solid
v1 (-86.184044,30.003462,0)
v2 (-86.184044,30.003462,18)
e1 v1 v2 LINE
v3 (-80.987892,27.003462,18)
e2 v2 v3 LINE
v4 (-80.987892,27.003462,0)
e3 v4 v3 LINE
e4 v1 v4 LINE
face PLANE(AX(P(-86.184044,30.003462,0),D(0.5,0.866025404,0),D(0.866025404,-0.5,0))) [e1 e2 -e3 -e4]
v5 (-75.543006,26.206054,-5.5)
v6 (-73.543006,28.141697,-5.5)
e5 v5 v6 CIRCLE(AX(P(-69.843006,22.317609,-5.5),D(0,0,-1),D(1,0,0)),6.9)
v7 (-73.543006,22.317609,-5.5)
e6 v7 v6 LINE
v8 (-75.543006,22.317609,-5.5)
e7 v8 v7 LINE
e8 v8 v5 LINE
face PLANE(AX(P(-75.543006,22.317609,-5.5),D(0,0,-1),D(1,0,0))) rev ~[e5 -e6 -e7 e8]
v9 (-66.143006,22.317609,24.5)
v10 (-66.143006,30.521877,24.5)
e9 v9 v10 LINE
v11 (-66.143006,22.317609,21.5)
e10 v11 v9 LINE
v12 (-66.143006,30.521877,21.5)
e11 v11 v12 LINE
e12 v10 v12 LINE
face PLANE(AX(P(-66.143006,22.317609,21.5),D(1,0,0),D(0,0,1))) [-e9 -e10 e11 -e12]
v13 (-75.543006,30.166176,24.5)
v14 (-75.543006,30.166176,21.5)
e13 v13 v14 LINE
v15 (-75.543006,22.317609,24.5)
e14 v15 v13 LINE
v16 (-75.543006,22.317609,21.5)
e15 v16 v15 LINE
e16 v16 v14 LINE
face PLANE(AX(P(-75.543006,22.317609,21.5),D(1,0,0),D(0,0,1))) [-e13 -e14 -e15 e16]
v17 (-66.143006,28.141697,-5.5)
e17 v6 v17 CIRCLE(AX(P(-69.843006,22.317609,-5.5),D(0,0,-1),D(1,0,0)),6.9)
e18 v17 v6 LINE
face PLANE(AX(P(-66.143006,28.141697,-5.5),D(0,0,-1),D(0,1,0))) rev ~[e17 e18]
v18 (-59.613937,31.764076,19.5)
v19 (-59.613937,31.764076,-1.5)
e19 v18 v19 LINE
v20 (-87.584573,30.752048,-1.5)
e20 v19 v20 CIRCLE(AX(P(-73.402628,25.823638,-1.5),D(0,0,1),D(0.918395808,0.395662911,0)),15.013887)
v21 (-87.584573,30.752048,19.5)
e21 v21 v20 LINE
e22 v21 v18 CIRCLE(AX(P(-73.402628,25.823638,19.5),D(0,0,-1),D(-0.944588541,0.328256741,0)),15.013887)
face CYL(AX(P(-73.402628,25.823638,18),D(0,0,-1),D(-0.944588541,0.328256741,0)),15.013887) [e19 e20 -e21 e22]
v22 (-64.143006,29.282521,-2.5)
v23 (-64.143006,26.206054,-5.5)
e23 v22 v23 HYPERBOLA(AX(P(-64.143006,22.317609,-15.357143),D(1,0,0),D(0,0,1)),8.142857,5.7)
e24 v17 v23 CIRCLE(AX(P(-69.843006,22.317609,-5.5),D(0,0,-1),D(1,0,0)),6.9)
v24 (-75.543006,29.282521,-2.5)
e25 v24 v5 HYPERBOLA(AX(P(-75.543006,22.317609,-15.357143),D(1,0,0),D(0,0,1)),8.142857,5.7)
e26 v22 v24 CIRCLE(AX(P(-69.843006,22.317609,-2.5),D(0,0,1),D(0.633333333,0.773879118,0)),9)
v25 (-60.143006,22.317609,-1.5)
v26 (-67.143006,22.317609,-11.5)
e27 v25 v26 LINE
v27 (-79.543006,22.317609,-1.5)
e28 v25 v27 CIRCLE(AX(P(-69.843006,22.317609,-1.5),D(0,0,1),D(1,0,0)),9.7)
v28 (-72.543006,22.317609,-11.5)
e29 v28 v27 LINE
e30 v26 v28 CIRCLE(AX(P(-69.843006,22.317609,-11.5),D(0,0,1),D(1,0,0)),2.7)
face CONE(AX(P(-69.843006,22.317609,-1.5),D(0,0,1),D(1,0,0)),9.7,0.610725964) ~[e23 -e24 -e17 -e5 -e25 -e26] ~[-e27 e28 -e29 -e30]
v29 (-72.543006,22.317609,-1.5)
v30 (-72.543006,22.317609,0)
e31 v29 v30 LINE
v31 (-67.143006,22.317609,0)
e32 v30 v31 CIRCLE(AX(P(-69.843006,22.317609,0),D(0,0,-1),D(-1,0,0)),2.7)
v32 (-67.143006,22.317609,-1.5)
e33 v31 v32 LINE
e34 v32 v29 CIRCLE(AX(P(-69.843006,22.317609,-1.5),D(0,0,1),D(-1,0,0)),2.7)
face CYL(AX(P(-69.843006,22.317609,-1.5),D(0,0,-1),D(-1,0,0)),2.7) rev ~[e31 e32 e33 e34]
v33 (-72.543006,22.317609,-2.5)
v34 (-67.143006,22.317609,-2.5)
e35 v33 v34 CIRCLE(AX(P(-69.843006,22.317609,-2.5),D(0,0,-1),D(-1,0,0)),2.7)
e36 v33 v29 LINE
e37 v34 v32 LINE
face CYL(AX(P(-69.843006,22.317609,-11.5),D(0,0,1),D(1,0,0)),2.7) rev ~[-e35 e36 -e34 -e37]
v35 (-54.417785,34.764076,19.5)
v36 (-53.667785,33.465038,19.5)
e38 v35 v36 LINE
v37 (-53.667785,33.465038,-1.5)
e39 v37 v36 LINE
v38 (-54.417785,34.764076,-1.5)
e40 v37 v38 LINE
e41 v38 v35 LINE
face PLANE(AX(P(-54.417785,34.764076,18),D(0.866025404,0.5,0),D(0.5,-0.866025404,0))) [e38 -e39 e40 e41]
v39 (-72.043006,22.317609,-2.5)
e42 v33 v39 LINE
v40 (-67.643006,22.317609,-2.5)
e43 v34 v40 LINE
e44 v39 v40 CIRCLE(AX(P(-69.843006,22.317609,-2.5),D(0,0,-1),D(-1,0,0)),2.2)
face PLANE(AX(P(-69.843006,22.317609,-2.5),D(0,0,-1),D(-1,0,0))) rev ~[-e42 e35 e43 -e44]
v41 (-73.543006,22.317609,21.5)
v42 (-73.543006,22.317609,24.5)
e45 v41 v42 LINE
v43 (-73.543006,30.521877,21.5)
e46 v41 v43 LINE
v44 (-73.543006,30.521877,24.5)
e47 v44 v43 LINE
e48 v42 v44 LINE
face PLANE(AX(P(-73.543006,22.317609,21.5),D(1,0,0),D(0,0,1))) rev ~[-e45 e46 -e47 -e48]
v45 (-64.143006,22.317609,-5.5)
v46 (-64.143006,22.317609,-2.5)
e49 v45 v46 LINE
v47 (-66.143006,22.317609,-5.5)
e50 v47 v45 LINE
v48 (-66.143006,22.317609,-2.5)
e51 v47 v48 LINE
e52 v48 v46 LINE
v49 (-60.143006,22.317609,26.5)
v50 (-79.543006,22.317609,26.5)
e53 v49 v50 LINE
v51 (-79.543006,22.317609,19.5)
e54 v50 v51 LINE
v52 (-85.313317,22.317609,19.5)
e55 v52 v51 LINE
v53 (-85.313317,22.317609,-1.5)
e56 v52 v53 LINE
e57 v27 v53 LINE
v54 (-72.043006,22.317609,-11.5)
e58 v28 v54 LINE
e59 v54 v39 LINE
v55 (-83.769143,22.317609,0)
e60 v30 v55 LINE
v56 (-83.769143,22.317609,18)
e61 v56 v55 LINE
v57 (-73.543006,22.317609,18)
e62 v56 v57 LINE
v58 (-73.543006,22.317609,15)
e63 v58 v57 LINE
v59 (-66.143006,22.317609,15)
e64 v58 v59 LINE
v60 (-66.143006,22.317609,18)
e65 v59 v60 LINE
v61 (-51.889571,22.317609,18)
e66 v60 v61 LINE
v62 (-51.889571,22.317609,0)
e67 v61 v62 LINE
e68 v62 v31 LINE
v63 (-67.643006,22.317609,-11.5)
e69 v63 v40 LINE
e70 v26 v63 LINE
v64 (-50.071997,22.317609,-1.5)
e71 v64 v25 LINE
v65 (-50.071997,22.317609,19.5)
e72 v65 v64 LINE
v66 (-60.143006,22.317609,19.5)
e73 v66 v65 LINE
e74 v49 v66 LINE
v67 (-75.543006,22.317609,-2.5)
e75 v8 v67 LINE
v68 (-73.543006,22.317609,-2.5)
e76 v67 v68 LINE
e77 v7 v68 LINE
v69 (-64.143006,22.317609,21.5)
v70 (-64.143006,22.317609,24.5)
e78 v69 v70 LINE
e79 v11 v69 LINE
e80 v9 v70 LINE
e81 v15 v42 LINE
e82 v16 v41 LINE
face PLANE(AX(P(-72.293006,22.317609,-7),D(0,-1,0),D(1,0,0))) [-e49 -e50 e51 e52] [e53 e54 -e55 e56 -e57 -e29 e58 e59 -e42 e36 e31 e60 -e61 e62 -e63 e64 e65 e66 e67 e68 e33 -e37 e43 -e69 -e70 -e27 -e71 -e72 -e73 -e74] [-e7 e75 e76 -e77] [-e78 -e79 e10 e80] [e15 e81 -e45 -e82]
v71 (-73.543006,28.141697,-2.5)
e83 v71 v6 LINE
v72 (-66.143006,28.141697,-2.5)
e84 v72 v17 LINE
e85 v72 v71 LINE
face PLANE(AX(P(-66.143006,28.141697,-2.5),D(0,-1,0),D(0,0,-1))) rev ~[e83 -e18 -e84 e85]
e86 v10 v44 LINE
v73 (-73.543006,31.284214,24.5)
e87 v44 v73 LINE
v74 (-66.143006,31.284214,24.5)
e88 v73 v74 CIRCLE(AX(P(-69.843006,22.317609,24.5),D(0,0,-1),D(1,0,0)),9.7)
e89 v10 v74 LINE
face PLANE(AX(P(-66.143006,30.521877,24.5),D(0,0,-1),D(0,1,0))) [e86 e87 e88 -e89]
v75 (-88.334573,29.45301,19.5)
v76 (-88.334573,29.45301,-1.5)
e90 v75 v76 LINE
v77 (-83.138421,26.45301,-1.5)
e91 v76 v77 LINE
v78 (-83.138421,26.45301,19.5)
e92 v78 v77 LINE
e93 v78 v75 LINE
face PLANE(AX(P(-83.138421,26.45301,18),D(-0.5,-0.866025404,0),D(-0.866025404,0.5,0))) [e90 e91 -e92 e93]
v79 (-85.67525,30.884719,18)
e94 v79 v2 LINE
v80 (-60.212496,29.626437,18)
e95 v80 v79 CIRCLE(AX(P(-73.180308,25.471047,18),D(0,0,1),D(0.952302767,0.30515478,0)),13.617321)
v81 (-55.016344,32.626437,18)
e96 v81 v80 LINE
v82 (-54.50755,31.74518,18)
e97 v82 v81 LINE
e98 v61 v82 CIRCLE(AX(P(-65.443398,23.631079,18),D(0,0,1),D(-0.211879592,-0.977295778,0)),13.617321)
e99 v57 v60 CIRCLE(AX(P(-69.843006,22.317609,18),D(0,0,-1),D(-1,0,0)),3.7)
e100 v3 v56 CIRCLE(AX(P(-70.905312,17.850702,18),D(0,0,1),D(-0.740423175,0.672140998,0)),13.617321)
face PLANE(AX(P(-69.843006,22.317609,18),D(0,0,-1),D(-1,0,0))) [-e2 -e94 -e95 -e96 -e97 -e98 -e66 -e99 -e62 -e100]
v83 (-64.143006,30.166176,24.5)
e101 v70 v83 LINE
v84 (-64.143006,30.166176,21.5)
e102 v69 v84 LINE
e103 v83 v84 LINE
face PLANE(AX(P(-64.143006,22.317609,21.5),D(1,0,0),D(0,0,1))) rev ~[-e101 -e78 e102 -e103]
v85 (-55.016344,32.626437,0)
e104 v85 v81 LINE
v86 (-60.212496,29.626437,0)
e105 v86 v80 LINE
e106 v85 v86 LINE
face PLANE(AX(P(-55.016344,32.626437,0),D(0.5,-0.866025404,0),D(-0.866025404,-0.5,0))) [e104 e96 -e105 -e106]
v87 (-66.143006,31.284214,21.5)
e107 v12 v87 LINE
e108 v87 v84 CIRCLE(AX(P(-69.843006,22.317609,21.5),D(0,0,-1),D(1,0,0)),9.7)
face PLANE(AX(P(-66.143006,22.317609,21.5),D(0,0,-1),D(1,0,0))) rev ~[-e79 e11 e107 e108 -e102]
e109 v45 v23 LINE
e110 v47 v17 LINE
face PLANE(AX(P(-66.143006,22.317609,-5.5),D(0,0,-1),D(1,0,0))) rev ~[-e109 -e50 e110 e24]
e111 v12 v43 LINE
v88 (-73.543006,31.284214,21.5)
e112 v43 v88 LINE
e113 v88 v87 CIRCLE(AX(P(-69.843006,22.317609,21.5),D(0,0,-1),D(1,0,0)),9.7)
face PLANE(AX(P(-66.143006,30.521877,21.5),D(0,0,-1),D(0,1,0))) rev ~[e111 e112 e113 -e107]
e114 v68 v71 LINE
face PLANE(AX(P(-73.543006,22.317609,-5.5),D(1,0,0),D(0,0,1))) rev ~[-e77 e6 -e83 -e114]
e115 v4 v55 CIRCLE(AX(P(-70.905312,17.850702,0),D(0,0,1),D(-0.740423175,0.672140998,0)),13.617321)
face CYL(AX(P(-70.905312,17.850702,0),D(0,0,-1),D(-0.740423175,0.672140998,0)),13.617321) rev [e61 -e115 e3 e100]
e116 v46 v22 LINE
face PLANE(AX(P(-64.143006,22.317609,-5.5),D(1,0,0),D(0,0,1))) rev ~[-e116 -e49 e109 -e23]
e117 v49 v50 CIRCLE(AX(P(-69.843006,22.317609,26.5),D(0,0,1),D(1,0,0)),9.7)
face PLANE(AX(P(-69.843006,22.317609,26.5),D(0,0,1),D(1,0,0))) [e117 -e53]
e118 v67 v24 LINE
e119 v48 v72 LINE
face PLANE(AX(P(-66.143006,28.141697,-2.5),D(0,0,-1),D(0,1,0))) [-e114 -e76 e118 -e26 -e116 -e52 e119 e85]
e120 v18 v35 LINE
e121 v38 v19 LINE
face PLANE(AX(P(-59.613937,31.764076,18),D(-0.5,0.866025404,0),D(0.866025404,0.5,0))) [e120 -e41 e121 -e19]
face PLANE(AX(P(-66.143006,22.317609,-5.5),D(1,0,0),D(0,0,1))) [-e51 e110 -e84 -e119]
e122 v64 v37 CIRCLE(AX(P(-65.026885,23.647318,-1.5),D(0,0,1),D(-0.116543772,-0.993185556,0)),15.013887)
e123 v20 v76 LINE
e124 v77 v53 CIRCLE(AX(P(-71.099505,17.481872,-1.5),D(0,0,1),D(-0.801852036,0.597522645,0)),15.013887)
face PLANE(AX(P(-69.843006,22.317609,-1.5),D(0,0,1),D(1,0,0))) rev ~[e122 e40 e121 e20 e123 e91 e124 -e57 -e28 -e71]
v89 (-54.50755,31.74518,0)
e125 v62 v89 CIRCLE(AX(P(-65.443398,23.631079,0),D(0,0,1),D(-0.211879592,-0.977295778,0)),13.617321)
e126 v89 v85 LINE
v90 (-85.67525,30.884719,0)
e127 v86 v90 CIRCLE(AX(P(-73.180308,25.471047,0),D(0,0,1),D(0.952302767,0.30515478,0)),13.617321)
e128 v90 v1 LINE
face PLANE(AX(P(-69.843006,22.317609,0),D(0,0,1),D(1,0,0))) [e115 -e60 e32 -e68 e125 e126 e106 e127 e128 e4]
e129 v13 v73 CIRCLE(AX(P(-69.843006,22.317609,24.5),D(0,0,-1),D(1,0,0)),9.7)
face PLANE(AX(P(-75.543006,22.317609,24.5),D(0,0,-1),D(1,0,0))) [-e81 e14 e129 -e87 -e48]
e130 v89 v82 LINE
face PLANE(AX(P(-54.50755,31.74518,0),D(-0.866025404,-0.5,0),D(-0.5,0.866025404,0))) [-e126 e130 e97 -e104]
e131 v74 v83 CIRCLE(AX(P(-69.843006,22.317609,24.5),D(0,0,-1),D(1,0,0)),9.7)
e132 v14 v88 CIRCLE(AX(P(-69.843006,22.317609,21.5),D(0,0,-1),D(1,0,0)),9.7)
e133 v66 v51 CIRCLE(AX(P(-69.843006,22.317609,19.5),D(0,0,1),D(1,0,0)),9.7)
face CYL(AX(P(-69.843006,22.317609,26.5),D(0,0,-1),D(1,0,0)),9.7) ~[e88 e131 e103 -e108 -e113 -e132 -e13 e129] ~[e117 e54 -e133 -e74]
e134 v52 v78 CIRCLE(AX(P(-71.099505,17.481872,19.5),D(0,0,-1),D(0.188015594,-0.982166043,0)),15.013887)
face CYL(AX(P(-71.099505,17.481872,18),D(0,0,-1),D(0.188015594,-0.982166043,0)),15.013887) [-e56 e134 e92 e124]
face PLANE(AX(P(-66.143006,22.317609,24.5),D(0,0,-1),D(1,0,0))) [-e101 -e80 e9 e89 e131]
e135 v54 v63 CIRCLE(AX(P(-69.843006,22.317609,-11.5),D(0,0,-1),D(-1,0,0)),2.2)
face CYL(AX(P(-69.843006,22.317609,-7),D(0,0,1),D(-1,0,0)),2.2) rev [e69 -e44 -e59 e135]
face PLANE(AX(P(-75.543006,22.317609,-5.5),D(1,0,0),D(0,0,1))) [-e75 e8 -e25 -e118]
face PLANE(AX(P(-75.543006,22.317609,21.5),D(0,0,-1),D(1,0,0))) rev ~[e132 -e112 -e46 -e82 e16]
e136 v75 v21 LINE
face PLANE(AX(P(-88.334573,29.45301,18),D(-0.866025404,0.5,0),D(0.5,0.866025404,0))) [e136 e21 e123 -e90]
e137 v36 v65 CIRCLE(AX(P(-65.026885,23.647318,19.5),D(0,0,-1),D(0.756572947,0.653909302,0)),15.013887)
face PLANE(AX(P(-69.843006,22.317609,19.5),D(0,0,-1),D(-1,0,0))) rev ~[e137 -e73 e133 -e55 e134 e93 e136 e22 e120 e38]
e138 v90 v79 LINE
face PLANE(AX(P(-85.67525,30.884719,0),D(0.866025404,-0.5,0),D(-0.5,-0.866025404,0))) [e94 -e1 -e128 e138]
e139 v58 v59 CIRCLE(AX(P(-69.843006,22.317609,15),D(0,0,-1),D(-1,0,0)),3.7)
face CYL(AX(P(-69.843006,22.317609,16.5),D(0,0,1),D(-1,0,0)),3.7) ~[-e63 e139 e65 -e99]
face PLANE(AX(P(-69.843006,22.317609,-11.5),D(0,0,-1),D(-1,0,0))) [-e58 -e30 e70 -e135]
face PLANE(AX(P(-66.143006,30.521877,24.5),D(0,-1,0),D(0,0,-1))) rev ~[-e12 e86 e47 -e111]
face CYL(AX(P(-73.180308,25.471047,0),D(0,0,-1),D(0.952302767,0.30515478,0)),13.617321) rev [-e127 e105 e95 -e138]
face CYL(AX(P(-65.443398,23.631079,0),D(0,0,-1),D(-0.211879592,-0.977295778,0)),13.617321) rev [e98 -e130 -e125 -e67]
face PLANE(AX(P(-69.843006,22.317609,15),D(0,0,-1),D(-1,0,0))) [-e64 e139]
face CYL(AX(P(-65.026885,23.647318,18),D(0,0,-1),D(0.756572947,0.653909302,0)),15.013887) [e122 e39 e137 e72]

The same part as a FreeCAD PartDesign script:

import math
import FreeCAD as App
import Part
import Sketcher
Q = App.Units.Quantity

doc = App.newDocument("Part")
body = doc.addObject("PartDesign::Body", "Body")

# Sketch on XY plane
sketch1 = body.newObject("Sketcher::SketchObject", "Sketch")
sketch1.AttachmentSupport = (doc.getObject("XY_Plane"), [""])
sketch1.MapMode = "FlatFace"
sketch1.addGeometry(Part.LineSegment(App.Vector(-53.7, 33.5, 0), App.Vector(-54.4, 34.8, 0)), False)
sketch1.addGeometry(Part.LineSegment(App.Vector(-54.4, 34.8, 0), App.Vector(-59.6, 31.8, 0)), False)
sketch1.addGeometry(Part.ArcOfCircle(Part.Circle(App.Vector(-73.4, 25.8, 0), App.Vector(0, 0, 1), 15), math.radians(23), math.radians(161)), False)
sketch1.addGeometry(Part.LineSegment(App.Vector(-87.6, 30.8, 0), App.Vector(-88.3, 29.5, 0)), False)
sketch1.addGeometry(Part.LineSegment(App.Vector(-88.3, 29.5, 0), App.Vector(-83.1, 26.5, 0)), False)
sketch1.addGeometry(Part.ArcOfCircle(Part.Circle(App.Vector(-71.1, 17.5, 0), App.Vector(0, 0, 1), 15), math.radians(143), math.radians(281)), False)
sketch1.addGeometry(Part.LineSegment(App.Vector(-68.3, 2.7, 0), App.Vector(-66.8, 2.7, 0)), False)
sketch1.addGeometry(Part.LineSegment(App.Vector(-66.8, 2.7, 0), App.Vector(-66.8, 8.7, 0)), False)
sketch1.addGeometry(Part.ArcOfCircle(Part.Circle(App.Vector(-65, 23.6, 0), App.Vector(0, 0, 1), 15), math.radians(-97), math.radians(41)), False)
sketch1.addGeometry(Part.LineSegment(App.Vector(-55, 32.6, 0), App.Vector(-54.5, 31.7, 0)), False)
sketch1.addGeometry(Part.ArcOfCircle(Part.Circle(App.Vector(-65.4, 23.6, 0), App.Vector(0, 0, 1), 13.6), math.radians(-102), math.radians(37)), False)
sketch1.addGeometry(Part.LineSegment(App.Vector(-68.3, 10.3, 0), App.Vector(-68.3, 4.3, 0)), False)
sketch1.addGeometry(Part.LineSegment(App.Vector(-68.3, 4.3, 0), App.Vector(-69.3, 4.3, 0)), False)
sketch1.addGeometry(Part.ArcOfCircle(Part.Circle(App.Vector(-70.9, 17.9, 0), App.Vector(0, 0, 1), 13.6), math.radians(138), math.radians(277)), False)
sketch1.addGeometry(Part.LineSegment(App.Vector(-81, 27, 0), App.Vector(-86.2, 30, 0)), False)
sketch1.addGeometry(Part.LineSegment(App.Vector(-86.2, 30, 0), App.Vector(-85.7, 30.9, 0)), False)
sketch1.addGeometry(Part.ArcOfCircle(Part.Circle(App.Vector(-73.2, 25.5, 0), App.Vector(0, 0, 1), 13.6), math.radians(18), math.radians(157)), False)
sketch1.addGeometry(Part.LineSegment(App.Vector(-60.2, 29.6, 0), App.Vector(-55, 32.6, 0)), False)
sketch1.addConstraint(Sketcher.Constraint("Coincident", 0, 2, 1, 1))
sketch1.addConstraint(Sketcher.Constraint("Coincident", 1, 2, 2, 1))
sketch1.addConstraint(Sketcher.Constraint("Coincident", 2, 2, 3, 1))
sketch1.addConstraint(Sketcher.Constraint("Coincident", 3, 2, 4, 1))
sketch1.addConstraint(Sketcher.Constraint("Coincident", 4, 2, 5, 1))
sketch1.addConstraint(Sketcher.Constraint("Coincident", 5, 2, 6, 1))
sketch1.addConstraint(Sketcher.Constraint("Coincident", 6, 2, 7, 1))
sketch1.addConstraint(Sketcher.Constraint("Coincident", 7, 2, 8, 1))
sketch1.addConstraint(Sketcher.Constraint("Coincident", 8, 2, 0, 1))
sketch1.addConstraint(Sketcher.Constraint("Coincident", 9, 2, 10, 2))
sketch1.addConstraint(Sketcher.Constraint("Coincident", 10, 1, 11, 1))
sketch1.addConstraint(Sketcher.Constraint("Coincident", 11, 2, 12, 1))
sketch1.addConstraint(Sketcher.Constraint("Coincident", 12, 2, 13, 2))
sketch1.addConstraint(Sketcher.Constraint("Coincident", 13, 1, 14, 1))
sketch1.addConstraint(Sketcher.Constraint("Coincident", 14, 2, 15, 1))
sketch1.addConstraint(Sketcher.Constraint("Coincident", 15, 2, 16, 2))
sketch1.addConstraint(Sketcher.Constraint("Coincident", 16, 1, 17, 1))
sketch1.addConstraint(Sketcher.Constraint("Coincident", 17, 2, 9, 1))
sketch1.addConstraint(Sketcher.Constraint("Horizontal", 6))
sketch1.addConstraint(Sketcher.Constraint("Vertical", 7))
sketch1.addConstraint(Sketcher.Constraint("Vertical", 11))
sketch1.addConstraint(Sketcher.Constraint("Horizontal", 12))
sketch1.addConstraint(Sketcher.Constraint("Equal", 2, 5))
sketch1.addConstraint(Sketcher.Constraint("Equal", 5, 8))
sketch1.addConstraint(Sketcher.Constraint("Equal", 10, 13))
sketch1.addConstraint(Sketcher.Constraint("Equal", 13, 16))
sketch1.addConstraint(Sketcher.Constraint("Perpendicular", 0, 1))
sketch1.addConstraint(Sketcher.Constraint("Perpendicular", 3, 4))
sketch1.addConstraint(Sketcher.Constraint("Perpendicular", 1, 9))
sketch1.addConstraint(Sketcher.Constraint("Parallel", 4, 14))
sketch1.addConstraint(Sketcher.Constraint("Perpendicular", 14, 15))
sketch1.addConstraint(Sketcher.Constraint("Perpendicular", 9, 17))
sketch1.addConstraint(Sketcher.Constraint("Equal", 7, 11))
sketch1.addConstraint(Sketcher.Constraint("Equal", 0, 3))
sketch1.addConstraint(Sketcher.Constraint("Equal", 1, 4))
sketch1.addConstraint(Sketcher.Constraint("Equal", 4, 14))
sketch1.addConstraint(Sketcher.Constraint("Equal", 9, 15))
sketch1.addConstraint(Sketcher.Constraint("Equal", 14, 17))
sketch1.addConstraint(Sketcher.Constraint("DistanceY", 7, 1, 7, 2, 6.0))
sketch1.addConstraint(Sketcher.Constraint("Angle", 0, Q("120 deg")))
sketch1.addConstraint(Sketcher.Constraint("Angle", 3, Q("-120 deg")))
sketch1.addConstraint(Sketcher.Constraint("Distance", 1, 6.0))
sketch1.addConstraint(Sketcher.Constraint("DistanceX", 6, 1, 6, 2, 1.5))
sketch1.addConstraint(Sketcher.Constraint("Distance", 0, 1.5))
sketch1.addConstraint(Sketcher.Constraint("Radius", 10, 13.617321))
sketch1.addConstraint(Sketcher.Constraint("Radius", 2, 15.013887))
sketch1.addConstraint(Sketcher.Constraint("DistanceY", 16, 3, 2, 2, 5.281001))
sketch1.addConstraint(Sketcher.Constraint("DistanceX", 8, 3, 0, 2, 10.609101))
sketch1.addConstraint(Sketcher.Constraint("DistanceY", 10, 3, 9, 2, 8.114101))
sketch1.addConstraint(Sketcher.Constraint("DistanceY", 16, 1, 8, 2, 3.838601))
sketch1.addConstraint(Sketcher.Constraint("DistanceX", 12, 2, 12, 1, 1.017588))
sketch1.addConstraint(Sketcher.Constraint("DistanceY", -1, 1, 2, 3, 25.823638))
sketch1.addConstraint(Sketcher.Constraint("DistanceY", -1, 1, 10, 3, 23.631079))
sketch1.addConstraint(Sketcher.Constraint("DistanceX", 13, 3, -1, 1, 70.905312))
sketch1.addConstraint(Sketcher.Constraint("DistanceX", 16, 3, -1, 1, 73.180308))
sketch1.addConstraint(Sketcher.Constraint("DistanceY", -1, 1, 3, 2, 29.45301))
sketch1.addConstraint(Sketcher.Constraint("DistanceX", 4, 2, -1, 1, 83.138421))
sketch1.addConstraint(Sketcher.Constraint("DistanceX", 5, 2, -1, 1, 68.27666))
sketch1.addConstraint(Sketcher.Constraint("DistanceY", -1, 1, 8, 2, 33.465038))
sketch1.addConstraint(Sketcher.Constraint("DistanceX", 10, 1, -1, 1, 68.32863))
pad1 = body.newObject("PartDesign::Pad", "Pad")
pad1.Profile = sketch1
pad1.Length = 18

# Sketch on XY plane
sketch2 = body.newObject("Sketcher::SketchObject", "Sketch001")
sketch2.AttachmentSupport = (doc.getObject("XY_Plane"), [""])
sketch2.MapMode = "FlatFace"
sketch2.AttachmentOffset = App.Placement(App.Vector(0, 0, -1.5), App.Rotation())
sketch2.addGeometry(Part.LineSegment(App.Vector(-88.3, 29.5, 0), App.Vector(-87.6, 30.8, 0)), False)
sketch2.addGeometry(Part.ArcOfCircle(Part.Circle(App.Vector(-73.4, 25.8, 0), App.Vector(0, 0, 1), 15), math.radians(23), math.radians(161)), False)
sketch2.addGeometry(Part.LineSegment(App.Vector(-59.6, 31.8, 0), App.Vector(-54.4, 34.8, 0)), False)
sketch2.addGeometry(Part.LineSegment(App.Vector(-54.4, 34.8, 0), App.Vector(-53.7, 33.5, 0)), False)
sketch2.addGeometry(Part.ArcOfCircle(Part.Circle(App.Vector(-65, 23.6, 0), App.Vector(0, 0, 1), 15), math.radians(-97), math.radians(41)), False)
sketch2.addGeometry(Part.LineSegment(App.Vector(-66.8, 8.7, 0), App.Vector(-66.8, 2.7, 0)), False)
sketch2.addGeometry(Part.LineSegment(App.Vector(-66.8, 2.7, 0), App.Vector(-68.3, 2.7, 0)), False)
sketch2.addGeometry(Part.ArcOfCircle(Part.Circle(App.Vector(-71.1, 17.5, 0), App.Vector(0, 0, 1), 15), math.radians(143), math.radians(281)), False)
sketch2.addGeometry(Part.LineSegment(App.Vector(-83.1, 26.5, 0), App.Vector(-88.3, 29.5, 0)), False)
sketch2.addGeometry(Part.Circle(App.Vector(-69.8, 22.3, 0), App.Vector(0, 0, 1), 2.7), False)
sketch2.addConstraint(Sketcher.Constraint("Coincident", 0, 2, 1, 2))
sketch2.addConstraint(Sketcher.Constraint("Coincident", 1, 1, 2, 1))
sketch2.addConstraint(Sketcher.Constraint("Coincident", 2, 2, 3, 1))
sketch2.addConstraint(Sketcher.Constraint("Coincident", 3, 2, 4, 2))
sketch2.addConstraint(Sketcher.Constraint("Coincident", 4, 1, 5, 1))
sketch2.addConstraint(Sketcher.Constraint("Coincident", 5, 2, 6, 1))
sketch2.addConstraint(Sketcher.Constraint("Coincident", 6, 2, 7, 2))
sketch2.addConstraint(Sketcher.Constraint("Coincident", 7, 1, 8, 1))
sketch2.addConstraint(Sketcher.Constraint("Coincident", 8, 2, 0, 1))
sketch2.addConstraint(Sketcher.Constraint("Vertical", 5))
sketch2.addConstraint(Sketcher.Constraint("Horizontal", 6))
sketch2.addConstraint(Sketcher.Constraint("Equal", 1, 4))
sketch2.addConstraint(Sketcher.Constraint("Equal", 4, 7))
sketch2.addConstraint(Sketcher.Constraint("Perpendicular", 2, 3))
sketch2.addConstraint(Sketcher.Constraint("Perpendicular", 0, 8))
sketch2.addConstraint(Sketcher.Constraint("Equal", 0, 3))
sketch2.addConstraint(Sketcher.Constraint("Equal", 2, 8))
sketch2.addConstraint(Sketcher.Constraint("Diameter", 9, 5.4))
sketch2.addConstraint(Sketcher.Constraint("DistanceY", 5, 2, 5, 1, 6.0))
sketch2.addConstraint(Sketcher.Constraint("Angle", 0, Q("60 deg")))
sketch2.addConstraint(Sketcher.Constraint("Angle", 2, Q("30 deg")))
sketch2.addConstraint(Sketcher.Constraint("Distance", 2, 6.0))
sketch2.addConstraint(Sketcher.Constraint("DistanceX", 6, 2, 6, 1, 1.5))
sketch2.addConstraint(Sketcher.Constraint("Distance", 0, 1.5))
sketch2.addConstraint(Sketcher.Constraint("Radius", 1, 15.013887))
sketch2.addConstraint(Sketcher.Constraint("DistanceX", 7, 3, 9, 3, 1.256499))
sketch2.addConstraint(Sketcher.Constraint("DistanceX", 4, 3, 2, 2, 10.609101))
sketch2.addConstraint(Sketcher.Constraint("DistanceY", 1, 3, 3, 2, 7.6414))
sketch2.addConstraint(Sketcher.Constraint("DistanceY", 9, 3, 7, 1, 4.1354))
sketch2.addConstraint(Sketcher.Constraint("DistanceY", -1, 1, 1, 3, 25.823638))
sketch2.addConstraint(Sketcher.Constraint("DistanceY", -1, 1, 9, 3, 22.317609))
sketch2.addConstraint(Sketcher.Constraint("DistanceX", 4, 1, -1, 1, 66.77666))
sketch2.addConstraint(Sketcher.Constraint("DistanceX", 7, 1, -1, 1, 83.138421))
pad2 = body.newObject("PartDesign::Pad", "Pad001")
pad2.Profile = sketch2
pad2.Length = 1.5

# Sketch on XY plane
sketch3 = body.newObject("Sketcher::SketchObject", "Sketch002")
sketch3.AttachmentSupport = (doc.getObject("XY_Plane"), [""])
sketch3.MapMode = "FlatFace"
sketch3.AttachmentOffset = App.Placement(App.Vector(0, 0, 18), App.Rotation())
sketch3.addGeometry(Part.LineSegment(App.Vector(-66.8, 2.7, 0), App.Vector(-66.8, 8.7, 0)), False)
sketch3.addGeometry(Part.ArcOfCircle(Part.Circle(App.Vector(-65, 23.6, 0), App.Vector(0, 0, 1), 15), math.radians(-97), math.radians(41)), False)
sketch3.addGeometry(Part.LineSegment(App.Vector(-53.7, 33.5, 0), App.Vector(-54.4, 34.8, 0)), False)
sketch3.addGeometry(Part.LineSegment(App.Vector(-54.4, 34.8, 0), App.Vector(-59.6, 31.8, 0)), False)
sketch3.addGeometry(Part.ArcOfCircle(Part.Circle(App.Vector(-73.4, 25.8, 0), App.Vector(0, 0, 1), 15), math.radians(23), math.radians(161)), False)
sketch3.addGeometry(Part.LineSegment(App.Vector(-87.6, 30.8, 0), App.Vector(-88.3, 29.5, 0)), False)
sketch3.addGeometry(Part.LineSegment(App.Vector(-88.3, 29.5, 0), App.Vector(-83.1, 26.5, 0)), False)
sketch3.addGeometry(Part.ArcOfCircle(Part.Circle(App.Vector(-71.1, 17.5, 0), App.Vector(0, 0, 1), 15), math.radians(143), math.radians(281)), False)
sketch3.addGeometry(Part.LineSegment(App.Vector(-68.3, 2.7, 0), App.Vector(-66.8, 2.7, 0)), False)
sketch3.addConstraint(Sketcher.Constraint("Coincident", 0, 2, 1, 1))
sketch3.addConstraint(Sketcher.Constraint("Coincident", 1, 2, 2, 1))
sketch3.addConstraint(Sketcher.Constraint("Coincident", 2, 2, 3, 1))
sketch3.addConstraint(Sketcher.Constraint("Coincident", 3, 2, 4, 1))
sketch3.addConstraint(Sketcher.Constraint("Coincident", 4, 2, 5, 1))
sketch3.addConstraint(Sketcher.Constraint("Coincident", 5, 2, 6, 1))
sketch3.addConstraint(Sketcher.Constraint("Coincident", 6, 2, 7, 1))
sketch3.addConstraint(Sketcher.Constraint("Coincident", 7, 2, 8, 1))
sketch3.addConstraint(Sketcher.Constraint("Coincident", 8, 2, 0, 1))
sketch3.addConstraint(Sketcher.Constraint("Vertical", 0))
sketch3.addConstraint(Sketcher.Constraint("Horizontal", 8))
sketch3.addConstraint(Sketcher.Constraint("Equal", 1, 4))
sketch3.addConstraint(Sketcher.Constraint("Equal", 4, 7))
sketch3.addConstraint(Sketcher.Constraint("Perpendicular", 2, 3))
sketch3.addConstraint(Sketcher.Constraint("Perpendicular", 5, 6))
sketch3.addConstraint(Sketcher.Constraint("Equal", 2, 5))
sketch3.addConstraint(Sketcher.Constraint("Equal", 3, 6))
sketch3.addConstraint(Sketcher.Constraint("DistanceY", 0, 1, 0, 2, 6.0))
sketch3.addConstraint(Sketcher.Constraint("Angle", 2, Q("120 deg")))
sketch3.addConstraint(Sketcher.Constraint("Angle", 5, Q("-120 deg")))
sketch3.addConstraint(Sketcher.Constraint("Distance", 3, 6.0))
sketch3.addConstraint(Sketcher.Constraint("DistanceX", 8, 1, 8, 2, 1.5))
sketch3.addConstraint(Sketcher.Constraint("Distance", 2, 1.5))
sketch3.addConstraint(Sketcher.Constraint("Radius", 1, 15.013887))
sketch3.addConstraint(Sketcher.Constraint("DistanceX", 1, 3, 1, 2, 11.359101))
sketch3.addConstraint(Sketcher.Constraint("DistanceY", 4, 3, 1, 2, 7.6414))
sketch3.addConstraint(Sketcher.Constraint("DistanceY", -1, 1, 4, 3, 25.823638))
sketch3.addConstraint(Sketcher.Constraint("DistanceX", 0, 2, -1, 1, 66.77666))
sketch3.addConstraint(Sketcher.Constraint("DistanceY", -1, 1, 5, 2, 29.45301))
sketch3.addConstraint(Sketcher.Constraint("DistanceX", 6, 2, -1, 1, 83.138421))
pad3 = body.newObject("PartDesign::Pad", "Pad002")
pad3.Profile = sketch3
pad3.Length = 1.5

# Sketch on XY plane
sketch4 = body.newObject("Sketcher::SketchObject", "Sketch003")
sketch4.AttachmentSupport = (doc.getObject("XY_Plane"), [""])
sketch4.MapMode = "FlatFace"
sketch4.AttachmentOffset = App.Placement(App.Vector(0, 0, -1.5), App.Rotation())
sketch4.addGeometry(Part.LineSegment(App.Vector(-67.1, 22.3, 0), App.Vector(-67.1, 20.5, 0)), False)
sketch4.addGeometry(Part.LineSegment(App.Vector(-67.1, 20.5, 0), App.Vector(-72.5, 20.5, 0)), False)
sketch4.addGeometry(Part.LineSegment(App.Vector(-72.5, 20.5, 0), App.Vector(-72.5, 22.3, 0)), False)
sketch4.addGeometry(Part.LineSegment(App.Vector(-72.5, 22.3, 0), App.Vector(-67.1, 22.3, 0)), False)
sketch4.addConstraint(Sketcher.Constraint("Coincident", 0, 2, 1, 1))
sketch4.addConstraint(Sketcher.Constraint("Coincident", 1, 2, 2, 1))
sketch4.addConstraint(Sketcher.Constraint("Coincident", 2, 2, 3, 1))
sketch4.addConstraint(Sketcher.Constraint("Coincident", 3, 2, 0, 1))
sketch4.addConstraint(Sketcher.Constraint("Vertical", 0))
sketch4.addConstraint(Sketcher.Constraint("Horizontal", 1))
sketch4.addConstraint(Sketcher.Constraint("Vertical", 2))
sketch4.addConstraint(Sketcher.Constraint("Horizontal", 3))
sketch4.addConstraint(Sketcher.Constraint("DistanceX", 1, 2, 1, 1, 5.4))
sketch4.addConstraint(Sketcher.Constraint("DistanceY", 0, 2, 0, 1, 1.803823))
sketch4.addConstraint(Sketcher.Constraint("DistanceY", -1, 1, 2, 2, 22.317609))
sketch4.addConstraint(Sketcher.Constraint("DistanceX", 0, 2, -1, 1, 67.143006))
pad4 = body.newObject("PartDesign::Pad", "Pad003")
pad4.Profile = sketch4
pad4.Length = 10
pad4.Reversed = True

# Sketch on XZ plane
sketch5 = body.newObject("Sketcher::SketchObject", "Sketch004")
sketch5.AttachmentSupport = (doc.getObject("XZ_Plane"), [""])
sketch5.MapMode = "FlatFace"
sketch5.AttachmentOffset = App.Placement(App.Vector(0, 0, -22.317609), App.Rotation())
sketch5.addGeometry(Part.LineSegment(App.Vector(-73, -12, 0), App.Vector(-73, -2, 0)), False)
sketch5.addGeometry(Part.LineSegment(App.Vector(-73, -2, 0), App.Vector(-67, -2, 0)), False)
sketch5.addGeometry(Part.LineSegment(App.Vector(-67, -2, 0), App.Vector(-67, -12, 0)), False)
sketch5.addGeometry(Part.LineSegment(App.Vector(-67, -12, 0), App.Vector(-73, -12, 0)), False)
sketch5.addConstraint(Sketcher.Constraint("Coincident", 0, 2, 1, 1))
sketch5.addConstraint(Sketcher.Constraint("Coincident", 1, 2, 2, 1))
sketch5.addConstraint(Sketcher.Constraint("Coincident", 2, 2, 3, 1))
sketch5.addConstraint(Sketcher.Constraint("Coincident", 3, 2, 0, 1))
sketch5.addConstraint(Sketcher.Constraint("Vertical", 0))
sketch5.addConstraint(Sketcher.Constraint("Horizontal", 1))
sketch5.addConstraint(Sketcher.Constraint("Vertical", 2))
sketch5.addConstraint(Sketcher.Constraint("Horizontal", 3))
sketch5.addConstraint(Sketcher.Constraint("DistanceY", 0, 1, 0, 2, 10.0))
sketch5.addConstraint(Sketcher.Constraint("DistanceX", 1, 1, 1, 2, 5.4))
sketch5.addConstraint(Sketcher.Constraint("DistanceY", 0, 2, -1, 1, 1.5))
sketch5.addConstraint(Sketcher.Constraint("DistanceX", 0, 2, -1, 1, 72.543006))
pocket1 = body.newObject("PartDesign::Pocket", "Pocket")
pocket1.Profile = sketch5
pocket1.Length = 10
pocket1.Reversed = True

# Sketch on XZ plane
sketch6 = body.newObject("Sketcher::SketchObject", "Sketch005")
sketch6.AttachmentSupport = (doc.getObject("XZ_Plane"), [""])
sketch6.MapMode = "FlatFace"
sketch6.AttachmentOffset = App.Placement(App.Vector(0, 0, -22.317609), App.Rotation())
sketch6.addGeometry(Part.LineSegment(App.Vector(-80, -2, 0), App.Vector(-73, -2, 0)), False)
sketch6.addGeometry(Part.LineSegment(App.Vector(-73, -2, 0), App.Vector(-73, -12, 0)), False)
sketch6.addGeometry(Part.LineSegment(App.Vector(-73, -12, 0), App.Vector(-80, -2, 0)), False)
sketch6.addGeometry(Part.LineSegment(App.Vector(-70, 20, 0), App.Vector(-80, 20, 0)), False)
sketch6.addGeometry(Part.LineSegment(App.Vector(-80, 20, 0), App.Vector(-80, 26, 0)), False)
sketch6.addGeometry(Part.LineSegment(App.Vector(-80, 26, 0), App.Vector(-70, 26, 0)), False)
sketch6.addGeometry(Part.LineSegment(App.Vector(-70, 26, 0), App.Vector(-70, 20, 0)), False)
sketch6.addGeometry(Part.LineSegment(App.Vector(-70, -12, 0), App.Vector(-70, 26, 0)), True)  # axis
sketch6.addConstraint(Sketcher.Constraint("Coincident", 0, 2, 1, 1))
sketch6.addConstraint(Sketcher.Constraint("Coincident", 1, 2, 2, 1))
sketch6.addConstraint(Sketcher.Constraint("Coincident", 2, 2, 0, 1))
sketch6.addConstraint(Sketcher.Constraint("Coincident", 3, 2, 4, 1))
sketch6.addConstraint(Sketcher.Constraint("Coincident", 4, 2, 5, 1))
sketch6.addConstraint(Sketcher.Constraint("Coincident", 5, 2, 6, 1))
sketch6.addConstraint(Sketcher.Constraint("Coincident", 6, 2, 3, 1))
sketch6.addConstraint(Sketcher.Constraint("Horizontal", 0))
sketch6.addConstraint(Sketcher.Constraint("Vertical", 1))
sketch6.addConstraint(Sketcher.Constraint("Horizontal", 3))
sketch6.addConstraint(Sketcher.Constraint("Vertical", 4))
sketch6.addConstraint(Sketcher.Constraint("Horizontal", 5))
sketch6.addConstraint(Sketcher.Constraint("Vertical", 6))
sketch6.addConstraint(Sketcher.Constraint("Vertical", 7))
sketch6.addConstraint(Sketcher.Constraint("Coincident", 7, 2, 5, 2))
sketch6.addConstraint(Sketcher.Constraint("Horizontal", 1, 2, 7, 1))
sketch6.addConstraint(Sketcher.Constraint("Vertical", 2, 2, 3, 2))
sketch6.addConstraint(Sketcher.Constraint("Equal", 0, 4))
sketch6.addConstraint(Sketcher.Constraint("DistanceX", 0, 1, 0, 2, 7.0))
sketch6.addConstraint(Sketcher.Constraint("DistanceY", 1, 2, 1, 1, 10.0))
sketch6.addConstraint(Sketcher.Constraint("DistanceY", 7, 1, 7, 2, 38.0))
sketch6.addConstraint(Sketcher.Constraint("DistanceX", 3, 2, 3, 1, 9.7))
sketch6.addConstraint(Sketcher.Constraint("DistanceY", 0, 2, -1, 1, 1.5))
sketch6.addConstraint(Sketcher.Constraint("DistanceX", 0, 2, -1, 1, 72.543006))
revolution = body.newObject("PartDesign::Revolution", "Revolution")
revolution.Profile = sketch6
revolution.ReferenceAxis = (sketch6, ["Axis0"])
revolution.Angle = 360

# Sketch on XZ plane
sketch7 = body.newObject("Sketcher::SketchObject", "Sketch006")
sketch7.AttachmentSupport = (doc.getObject("XZ_Plane"), [""])
sketch7.MapMode = "FlatFace"
sketch7.AttachmentOffset = App.Placement(App.Vector(0, 0, -22.317609), App.Rotation())
sketch7.addGeometry(Part.LineSegment(App.Vector(-92, -14, 0), App.Vector(-92, 30, 0)), False)
sketch7.addGeometry(Part.LineSegment(App.Vector(-92, 30, 0), App.Vector(-41, 30, 0)), False)
sketch7.addGeometry(Part.LineSegment(App.Vector(-41, 30, 0), App.Vector(-41, -14, 0)), False)
sketch7.addGeometry(Part.LineSegment(App.Vector(-41, -14, 0), App.Vector(-92, -14, 0)), False)
sketch7.addConstraint(Sketcher.Constraint("Coincident", 0, 2, 1, 1))
sketch7.addConstraint(Sketcher.Constraint("Coincident", 1, 2, 2, 1))
sketch7.addConstraint(Sketcher.Constraint("Coincident", 2, 2, 3, 1))
sketch7.addConstraint(Sketcher.Constraint("Coincident", 3, 2, 0, 1))
sketch7.addConstraint(Sketcher.Constraint("Vertical", 0))
sketch7.addConstraint(Sketcher.Constraint("Horizontal", 1))
sketch7.addConstraint(Sketcher.Constraint("Vertical", 2))
sketch7.addConstraint(Sketcher.Constraint("Horizontal", 3))
sketch7.addConstraint(Sketcher.Constraint("DistanceX", 1, 1, 1, 2, 50.345864))
sketch7.addConstraint(Sketcher.Constraint("DistanceY", 0, 1, 0, 2, 43.398116))
sketch7.addConstraint(Sketcher.Constraint("DistanceY", -1, 1, 0, 2, 29.549271))
sketch7.addConstraint(Sketcher.Constraint("DistanceX", 0, 2, -1, 1, 91.635857))
pocket2 = body.newObject("PartDesign::Pocket", "Pocket001")
pocket2.Profile = sketch7
pocket2.Length = 30
pocket2.Reversed = True

# Sketch on XZ plane
sketch8 = body.newObject("Sketcher::SketchObject", "Sketch007")
sketch8.AttachmentSupport = (doc.getObject("XZ_Plane"), [""])
sketch8.MapMode = "FlatFace"
sketch8.AttachmentOffset = App.Placement(App.Vector(0, 0, -22.317609), App.Rotation())
sketch8.addGeometry(Part.LineSegment(App.Vector(-75.5, -2.5, 0), App.Vector(-75.5, -5.5, 0)), False)
sketch8.addGeometry(Part.LineSegment(App.Vector(-75.5, -5.5, 0), App.Vector(-73.5, -5.5, 0)), False)
sketch8.addGeometry(Part.LineSegment(App.Vector(-73.5, -5.5, 0), App.Vector(-73.5, -2.5, 0)), False)
sketch8.addGeometry(Part.LineSegment(App.Vector(-73.5, -2.5, 0), App.Vector(-75.5, -2.5, 0)), False)
sketch8.addGeometry(Part.LineSegment(App.Vector(-66.1, -2.5, 0), App.Vector(-66.1, -5.5, 0)), False)
sketch8.addGeometry(Part.LineSegment(App.Vector(-66.1, -5.5, 0), App.Vector(-64.1, -5.5, 0)), False)
sketch8.addGeometry(Part.LineSegment(App.Vector(-64.1, -5.5, 0), App.Vector(-64.1, -2.5, 0)), False)
sketch8.addGeometry(Part.LineSegment(App.Vector(-64.1, -2.5, 0), App.Vector(-66.1, -2.5, 0)), False)
sketch8.addGeometry(Part.LineSegment(App.Vector(-66.1, 24.5, 0), App.Vector(-66.1, 21.5, 0)), False)
sketch8.addGeometry(Part.LineSegment(App.Vector(-66.1, 21.5, 0), App.Vector(-64.1, 21.5, 0)), False)
sketch8.addGeometry(Part.LineSegment(App.Vector(-64.1, 21.5, 0), App.Vector(-64.1, 24.5, 0)), False)
sketch8.addGeometry(Part.LineSegment(App.Vector(-64.1, 24.5, 0), App.Vector(-66.1, 24.5, 0)), False)
sketch8.addGeometry(Part.LineSegment(App.Vector(-75.5, 24.5, 0), App.Vector(-75.5, 21.5, 0)), False)
sketch8.addGeometry(Part.LineSegment(App.Vector(-75.5, 21.5, 0), App.Vector(-73.5, 21.5, 0)), False)
sketch8.addGeometry(Part.LineSegment(App.Vector(-73.5, 21.5, 0), App.Vector(-73.5, 24.5, 0)), False)
sketch8.addGeometry(Part.LineSegment(App.Vector(-73.5, 24.5, 0), App.Vector(-75.5, 24.5, 0)), False)
sketch8.addConstraint(Sketcher.Constraint("Coincident", 0, 2, 1, 1))
sketch8.addConstraint(Sketcher.Constraint("Coincident", 1, 2, 2, 1))
sketch8.addConstraint(Sketcher.Constraint("Coincident", 2, 2, 3, 1))
sketch8.addConstraint(Sketcher.Constraint("Coincident", 3, 2, 0, 1))
sketch8.addConstraint(Sketcher.Constraint("Coincident", 4, 2, 5, 1))
sketch8.addConstraint(Sketcher.Constraint("Coincident", 5, 2, 6, 1))
sketch8.addConstraint(Sketcher.Constraint("Coincident", 6, 2, 7, 1))
sketch8.addConstraint(Sketcher.Constraint("Coincident", 7, 2, 4, 1))
sketch8.addConstraint(Sketcher.Constraint("Coincident", 8, 2, 9, 1))
sketch8.addConstraint(Sketcher.Constraint("Coincident", 9, 2, 10, 1))
sketch8.addConstraint(Sketcher.Constraint("Coincident", 10, 2, 11, 1))
sketch8.addConstraint(Sketcher.Constraint("Coincident", 11, 2, 8, 1))
sketch8.addConstraint(Sketcher.Constraint("Coincident", 12, 2, 13, 1))
sketch8.addConstraint(Sketcher.Constraint("Coincident", 13, 2, 14, 1))
sketch8.addConstraint(Sketcher.Constraint("Coincident", 14, 2, 15, 1))
sketch8.addConstraint(Sketcher.Constraint("Coincident", 15, 2, 12, 1))
sketch8.addConstraint(Sketcher.Constraint("Vertical", 0))
sketch8.addConstraint(Sketcher.Constraint("Horizontal", 1))
sketch8.addConstraint(Sketcher.Constraint("Vertical", 2))
sketch8.addConstraint(Sketcher.Constraint("Horizontal", 3))
sketch8.addConstraint(Sketcher.Constraint("Vertical", 4))
sketch8.addConstraint(Sketcher.Constraint("Horizontal", 5))
sketch8.addConstraint(Sketcher.Constraint("Vertical", 6))
sketch8.addConstraint(Sketcher.Constraint("Horizontal", 7))
sketch8.addConstraint(Sketcher.Constraint("Vertical", 8))
sketch8.addConstraint(Sketcher.Constraint("Horizontal", 9))
sketch8.addConstraint(Sketcher.Constraint("Vertical", 10))
sketch8.addConstraint(Sketcher.Constraint("Horizontal", 11))
sketch8.addConstraint(Sketcher.Constraint("Vertical", 12))
sketch8.addConstraint(Sketcher.Constraint("Horizontal", 13))
sketch8.addConstraint(Sketcher.Constraint("Vertical", 14))
sketch8.addConstraint(Sketcher.Constraint("Horizontal", 15))
sketch8.addConstraint(Sketcher.Constraint("Horizontal", 1, 2, 4, 2))
sketch8.addConstraint(Sketcher.Constraint("Horizontal", 3, 2, 6, 2))
sketch8.addConstraint(Sketcher.Constraint("Horizontal", 9, 2, 12, 2))
sketch8.addConstraint(Sketcher.Constraint("Horizontal", 11, 2, 14, 2))
sketch8.addConstraint(Sketcher.Constraint("Vertical", 7, 2, 8, 2))
sketch8.addConstraint(Sketcher.Constraint("Vertical", 6, 2, 9, 2))
sketch8.addConstraint(Sketcher.Constraint("Vertical", 3, 2, 12, 2))
sketch8.addConstraint(Sketcher.Constraint("Vertical", 2, 2, 13, 2))
sketch8.addConstraint(Sketcher.Constraint("Equal", 3, 5))
sketch8.addConstraint(Sketcher.Constraint("Equal", 6, 8))
sketch8.addConstraint(Sketcher.Constraint("DistanceX", 1, 1, 1, 2, 2.0))
sketch8.addConstraint(Sketcher.Constraint("DistanceY", 0, 2, 0, 1, 3.0))
sketch8.addConstraint(Sketcher.Constraint("DistanceY", 7, 2, 8, 2, 24.0))
sketch8.addConstraint(Sketcher.Constraint("DistanceY", 0, 2, -1, 1, 5.5))
sketch8.addConstraint(Sketcher.Constraint("DistanceX", 1, 2, 4, 2, 7.4))
sketch8.addConstraint(Sketcher.Constraint("DistanceX", 0, 2, -1, 1, 75.543006))
pocket3 = body.newObject("PartDesign::Pocket", "Pocket002")
pocket3.Profile = sketch8
pocket3.Length = 30

# Sketch on YZ plane
sketch9 = body.newObject("Sketcher::SketchObject", "Sketch008")
sketch9.AttachmentSupport = (doc.getObject("YZ_Plane"), [""])
sketch9.MapMode = "FlatFace"
sketch9.AttachmentOffset = App.Placement(App.Vector(0, 0, -66.143006), App.Rotation())
sketch9.addGeometry(Part.LineSegment(App.Vector(38.1, -2.5, 0), App.Vector(28.1, -2.5, 0)), False)
sketch9.addGeometry(Part.LineSegment(App.Vector(28.1, -2.5, 0), App.Vector(28.1, -5.5, 0)), False)
sketch9.addGeometry(Part.LineSegment(App.Vector(28.1, -5.5, 0), App.Vector(38.1, -5.5, 0)), False)
sketch9.addGeometry(Part.LineSegment(App.Vector(38.1, -5.5, 0), App.Vector(38.1, -2.5, 0)), False)
sketch9.addGeometry(Part.LineSegment(App.Vector(35.1, 24.5, 0), App.Vector(30.5, 24.5, 0)), False)
sketch9.addGeometry(Part.LineSegment(App.Vector(30.5, 24.5, 0), App.Vector(30.5, 21.5, 0)), False)
sketch9.addGeometry(Part.LineSegment(App.Vector(30.5, 21.5, 0), App.Vector(35.1, 21.5, 0)), False)
sketch9.addGeometry(Part.LineSegment(App.Vector(35.1, 21.5, 0), App.Vector(35.1, 24.5, 0)), False)
sketch9.addConstraint(Sketcher.Constraint("Coincident", 0, 2, 1, 1))
sketch9.addConstraint(Sketcher.Constraint("Coincident", 1, 2, 2, 1))
sketch9.addConstraint(Sketcher.Constraint("Coincident", 2, 2, 3, 1))
sketch9.addConstraint(Sketcher.Constraint("Coincident", 3, 2, 0, 1))
sketch9.addConstraint(Sketcher.Constraint("Coincident", 4, 2, 5, 1))
sketch9.addConstraint(Sketcher.Constraint("Coincident", 5, 2, 6, 1))
sketch9.addConstraint(Sketcher.Constraint("Coincident", 6, 2, 7, 1))
sketch9.addConstraint(Sketcher.Constraint("Coincident", 7, 2, 4, 1))
sketch9.addConstraint(Sketcher.Constraint("Horizontal", 0))
sketch9.addConstraint(Sketcher.Constraint("Vertical", 1))
sketch9.addConstraint(Sketcher.Constraint("Horizontal", 2))
sketch9.addConstraint(Sketcher.Constraint("Vertical", 3))
sketch9.addConstraint(Sketcher.Constraint("Horizontal", 4))
sketch9.addConstraint(Sketcher.Constraint("Vertical", 5))
sketch9.addConstraint(Sketcher.Constraint("Horizontal", 6))
sketch9.addConstraint(Sketcher.Constraint("Vertical", 7))
sketch9.addConstraint(Sketcher.Constraint("Equal", 3, 5))
sketch9.addConstraint(Sketcher.Constraint("DistanceY", 1, 2, 1, 1, 3.0))
sketch9.addConstraint(Sketcher.Constraint("DistanceY", 0, 2, 4, 2, 27.0))
sketch9.addConstraint(Sketcher.Constraint("DistanceY", 0, 2, -1, 1, 2.5))
sketch9.addConstraint(Sketcher.Constraint("DistanceX", 0, 2, 0, 1, 9.965396))
sketch9.addConstraint(Sketcher.Constraint("DistanceX", 4, 2, 4, 1, 4.625035))
sketch9.addConstraint(Sketcher.Constraint("DistanceX", 0, 2, 4, 2, 2.380179))
sketch9.addConstraint(Sketcher.Constraint("DistanceX", -1, 1, 0, 2, 28.141697))
pocket4 = body.newObject("PartDesign::Pocket", "Pocket003")
pocket4.Profile = sketch9
pocket4.Length = 7.4

# Sketch on XZ plane
sketch10 = body.newObject("Sketcher::SketchObject", "Sketch009")
sketch10.AttachmentSupport = (doc.getObject("XZ_Plane"), [""])
sketch10.MapMode = "FlatFace"
sketch10.AttachmentOffset = App.Placement(App.Vector(0, 0, -22.317609), App.Rotation())
sketch10.addGeometry(Part.LineSegment(App.Vector(-73.5, 18, 0), App.Vector(-73.5, 15, 0)), False)
sketch10.addGeometry(Part.LineSegment(App.Vector(-73.5, 15, 0), App.Vector(-69.8, 15, 0)), False)
sketch10.addGeometry(Part.LineSegment(App.Vector(-69.8, 15, 0), App.Vector(-69.8, 18, 0)), False)
sketch10.addGeometry(Part.LineSegment(App.Vector(-69.8, 18, 0), App.Vector(-73.5, 18, 0)), False)
sketch10.addGeometry(Part.LineSegment(App.Vector(-69.8, 18, 0), App.Vector(-69.8, 15, 0)), True)  # axis
sketch10.addConstraint(Sketcher.Constraint("Coincident", 0, 2, 1, 1))
sketch10.addConstraint(Sketcher.Constraint("Coincident", 1, 2, 2, 1))
sketch10.addConstraint(Sketcher.Constraint("Coincident", 2, 2, 3, 1))
sketch10.addConstraint(Sketcher.Constraint("Coincident", 3, 2, 0, 1))
sketch10.addConstraint(Sketcher.Constraint("Vertical", 0))
sketch10.addConstraint(Sketcher.Constraint("Horizontal", 1))
sketch10.addConstraint(Sketcher.Constraint("Vertical", 2))
sketch10.addConstraint(Sketcher.Constraint("Horizontal", 3))
sketch10.addConstraint(Sketcher.Constraint("Vertical", 4))
sketch10.addConstraint(Sketcher.Constraint("Coincident", 4, 1, 2, 2))
sketch10.addConstraint(Sketcher.Constraint("Horizontal", 0, 2, 4, 2))
sketch10.addConstraint(Sketcher.Constraint("DistanceY", 0, 2, 0, 1, 3.0))
sketch10.addConstraint(Sketcher.Constraint("DistanceX", 1, 1, 1, 2, 3.7))
sketch10.addConstraint(Sketcher.Constraint("DistanceY", -1, 1, 0, 2, 15.0))
sketch10.addConstraint(Sketcher.Constraint("DistanceX", 0, 2, -1, 1, 73.543006))
revolution2 = body.newObject("PartDesign::Revolution", "Revolution001")
revolution2.Profile = sketch10
revolution2.ReferenceAxis = (sketch10, ["Axis0"])
revolution2.Angle = 180

# Sketch on XZ plane
sketch11 = body.newObject("Sketcher::SketchObject", "Sketch010")
sketch11.AttachmentSupport = (doc.getObject("XZ_Plane"), [""])
sketch11.MapMode = "FlatFace"
sketch11.AttachmentOffset = App.Placement(App.Vector(0, 0, -22.317609), App.Rotation())
sketch11.addGeometry(Part.LineSegment(App.Vector(-72.5, -2.5, 0), App.Vector(-72.5, -11.5, 0)), False)
sketch11.addGeometry(Part.LineSegment(App.Vector(-72.5, -11.5, 0), App.Vector(-72, -11.5, 0)), False)
sketch11.addGeometry(Part.LineSegment(App.Vector(-72, -11.5, 0), App.Vector(-72, -2.5, 0)), False)
sketch11.addGeometry(Part.LineSegment(App.Vector(-72, -2.5, 0), App.Vector(-72.5, -2.5, 0)), False)
sketch11.addGeometry(Part.LineSegment(App.Vector(-69.8, -2.5, 0), App.Vector(-69.8, -11.5, 0)), True)  # axis
sketch11.addConstraint(Sketcher.Constraint("Coincident", 0, 2, 1, 1))
sketch11.addConstraint(Sketcher.Constraint("Coincident", 1, 2, 2, 1))
sketch11.addConstraint(Sketcher.Constraint("Coincident", 2, 2, 3, 1))
sketch11.addConstraint(Sketcher.Constraint("Coincident", 3, 2, 0, 1))
sketch11.addConstraint(Sketcher.Constraint("Vertical", 0))
sketch11.addConstraint(Sketcher.Constraint("Horizontal", 1))
sketch11.addConstraint(Sketcher.Constraint("Vertical", 2))
sketch11.addConstraint(Sketcher.Constraint("Horizontal", 3))
sketch11.addConstraint(Sketcher.Constraint("Vertical", 4))
sketch11.addConstraint(Sketcher.Constraint("Horizontal", 3, 2, 4, 1))
sketch11.addConstraint(Sketcher.Constraint("Horizontal", 1, 2, 4, 2))
sketch11.addConstraint(Sketcher.Constraint("DistanceY", 0, 2, 0, 1, 9.0))
sketch11.addConstraint(Sketcher.Constraint("DistanceX", 1, 1, 1, 2, 0.5))
sketch11.addConstraint(Sketcher.Constraint("DistanceY", 0, 2, -1, 1, 11.5))
sketch11.addConstraint(Sketcher.Constraint("DistanceX", 2, 2, 4, 1, 2.2))
sketch11.addConstraint(Sketcher.Constraint("DistanceX", 0, 2, -1, 1, 72.543006))
revolution3 = body.newObject("PartDesign::Revolution", "Revolution002")
revolution3.Profile = sketch11
revolution3.ReferenceAxis = (sketch11, ["Axis0"])
revolution3.Angle = 180

doc.recompute()
